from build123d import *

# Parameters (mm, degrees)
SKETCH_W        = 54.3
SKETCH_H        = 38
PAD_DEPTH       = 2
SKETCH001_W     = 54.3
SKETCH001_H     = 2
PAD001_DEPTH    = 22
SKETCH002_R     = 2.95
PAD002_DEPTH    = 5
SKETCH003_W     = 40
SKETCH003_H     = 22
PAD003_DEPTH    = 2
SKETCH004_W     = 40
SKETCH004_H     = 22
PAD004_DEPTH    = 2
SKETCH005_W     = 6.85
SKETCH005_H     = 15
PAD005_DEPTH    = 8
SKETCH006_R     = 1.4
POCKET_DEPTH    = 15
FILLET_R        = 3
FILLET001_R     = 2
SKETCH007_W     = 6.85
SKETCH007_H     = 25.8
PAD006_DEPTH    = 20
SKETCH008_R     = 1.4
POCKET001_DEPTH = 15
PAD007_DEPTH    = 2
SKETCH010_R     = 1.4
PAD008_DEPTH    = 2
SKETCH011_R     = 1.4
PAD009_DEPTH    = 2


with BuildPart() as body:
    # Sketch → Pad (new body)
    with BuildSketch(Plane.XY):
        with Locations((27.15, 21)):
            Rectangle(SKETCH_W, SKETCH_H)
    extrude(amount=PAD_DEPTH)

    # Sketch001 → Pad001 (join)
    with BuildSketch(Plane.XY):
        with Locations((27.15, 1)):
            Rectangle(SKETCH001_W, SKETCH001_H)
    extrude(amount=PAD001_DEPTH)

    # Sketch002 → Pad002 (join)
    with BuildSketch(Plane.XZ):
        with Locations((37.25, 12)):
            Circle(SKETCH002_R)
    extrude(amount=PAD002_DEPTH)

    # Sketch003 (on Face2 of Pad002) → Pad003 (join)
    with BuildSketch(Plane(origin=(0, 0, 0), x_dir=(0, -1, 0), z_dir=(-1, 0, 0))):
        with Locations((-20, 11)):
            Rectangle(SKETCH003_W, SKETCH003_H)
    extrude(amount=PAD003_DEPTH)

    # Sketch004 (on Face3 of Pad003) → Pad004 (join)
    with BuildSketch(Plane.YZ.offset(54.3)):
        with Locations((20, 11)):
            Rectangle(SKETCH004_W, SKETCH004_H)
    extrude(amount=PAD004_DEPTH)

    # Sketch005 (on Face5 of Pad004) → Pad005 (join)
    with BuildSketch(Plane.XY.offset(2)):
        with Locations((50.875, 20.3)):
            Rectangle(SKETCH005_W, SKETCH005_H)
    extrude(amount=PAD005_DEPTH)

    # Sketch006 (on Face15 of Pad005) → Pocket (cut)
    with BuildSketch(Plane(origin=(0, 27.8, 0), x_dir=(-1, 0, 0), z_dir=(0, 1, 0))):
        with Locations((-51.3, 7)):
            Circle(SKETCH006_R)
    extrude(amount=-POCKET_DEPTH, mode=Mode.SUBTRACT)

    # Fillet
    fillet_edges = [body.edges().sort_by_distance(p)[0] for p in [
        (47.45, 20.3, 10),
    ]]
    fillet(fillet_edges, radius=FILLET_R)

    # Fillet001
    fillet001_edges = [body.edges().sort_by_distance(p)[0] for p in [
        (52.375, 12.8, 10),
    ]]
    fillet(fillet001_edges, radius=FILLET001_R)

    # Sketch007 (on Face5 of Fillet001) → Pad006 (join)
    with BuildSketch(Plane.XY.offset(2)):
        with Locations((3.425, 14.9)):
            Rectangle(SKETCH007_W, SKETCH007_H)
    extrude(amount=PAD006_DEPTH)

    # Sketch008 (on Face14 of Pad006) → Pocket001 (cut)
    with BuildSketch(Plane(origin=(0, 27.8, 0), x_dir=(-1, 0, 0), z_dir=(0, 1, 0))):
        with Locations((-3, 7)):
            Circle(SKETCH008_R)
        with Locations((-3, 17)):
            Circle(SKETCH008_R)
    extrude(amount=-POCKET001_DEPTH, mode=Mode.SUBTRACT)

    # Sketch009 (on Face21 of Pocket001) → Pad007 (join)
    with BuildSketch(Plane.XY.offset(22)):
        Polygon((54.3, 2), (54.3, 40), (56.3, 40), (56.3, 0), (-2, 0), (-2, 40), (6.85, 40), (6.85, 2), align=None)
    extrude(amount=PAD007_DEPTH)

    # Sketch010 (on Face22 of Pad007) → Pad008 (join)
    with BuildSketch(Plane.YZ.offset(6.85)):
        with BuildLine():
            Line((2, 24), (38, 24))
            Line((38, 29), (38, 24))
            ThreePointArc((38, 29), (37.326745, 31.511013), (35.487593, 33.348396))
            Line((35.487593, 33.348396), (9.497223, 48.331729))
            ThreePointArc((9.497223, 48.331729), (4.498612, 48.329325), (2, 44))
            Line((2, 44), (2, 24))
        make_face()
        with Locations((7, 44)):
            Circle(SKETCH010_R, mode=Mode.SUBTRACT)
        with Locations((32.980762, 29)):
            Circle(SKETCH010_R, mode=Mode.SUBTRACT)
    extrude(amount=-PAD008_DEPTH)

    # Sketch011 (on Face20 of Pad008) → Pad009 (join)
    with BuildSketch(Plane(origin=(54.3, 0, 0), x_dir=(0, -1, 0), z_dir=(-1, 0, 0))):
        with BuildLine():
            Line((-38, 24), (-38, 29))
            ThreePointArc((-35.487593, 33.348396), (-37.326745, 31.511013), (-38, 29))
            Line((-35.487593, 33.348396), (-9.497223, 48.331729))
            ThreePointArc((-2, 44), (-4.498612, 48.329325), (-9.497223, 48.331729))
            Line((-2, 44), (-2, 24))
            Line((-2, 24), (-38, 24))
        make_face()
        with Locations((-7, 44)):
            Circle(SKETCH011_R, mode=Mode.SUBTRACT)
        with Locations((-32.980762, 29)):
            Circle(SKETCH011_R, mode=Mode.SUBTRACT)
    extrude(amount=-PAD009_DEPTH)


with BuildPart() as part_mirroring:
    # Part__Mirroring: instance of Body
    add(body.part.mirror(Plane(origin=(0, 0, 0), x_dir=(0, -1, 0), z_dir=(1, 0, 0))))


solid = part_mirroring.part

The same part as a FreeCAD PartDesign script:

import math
import FreeCAD as App
import Part
import Sketcher
from FreeCAD import Vector
Q = App.Units.Quantity


def edges_at(feature, points):
    """Names of the edges that pass closest to the given points."""
    edges = feature.Shape.Edges
    near = lambda p: min(range(len(edges)), key=lambda i: edges[i].distToShape(Part.Vertex(*p))[0])
    return sorted({f"Edge{near(p) + 1}" for p in points})

doc = App.newDocument("Part")
body = doc.addObject("PartDesign::Body", "Body")

# Sketch on XY plane
sketch1 = body.newObject("Sketcher::SketchObject", "Sketch")
sketch1.AttachmentSupport = (doc.getObject("XY_Plane"), [""])
sketch1.MapMode = "FlatFace"
sketch1.addGeometry(Part.LineSegment(Vector(0, 40, 0), Vector(0, 2, 0)), False)
sketch1.addGeometry(Part.LineSegment(Vector(0, 2, 0), Vector(54.3, 2, 0)), False)
sketch1.addGeometry(Part.LineSegment(Vector(54.3, 2, 0), Vector(54.3, 40, 0)), False)
sketch1.addGeometry(Part.LineSegment(Vector(54.3, 40, 0), Vector(0, 40, 0)), False)
sketch1.addConstraint(Sketcher.Constraint("Coincident", 0, 2, 1, 1))
sketch1.addConstraint(Sketcher.Constraint("Coincident", 1, 2, 2, 1))
sketch1.addConstraint(Sketcher.Constraint("Coincident", 2, 2, 3, 1))
sketch1.addConstraint(Sketcher.Constraint("Coincident", 3, 2, 0, 1))
sketch1.addConstraint(Sketcher.Constraint("Vertical", 0))
sketch1.addConstraint(Sketcher.Constraint("Horizontal", 1))
sketch1.addConstraint(Sketcher.Constraint("Vertical", 2))
sketch1.addConstraint(Sketcher.Constraint("Horizontal", 3))
sketch1.addConstraint(Sketcher.Constraint("PointOnObject", 0, 2, -2))
sketch1.addConstraint(Sketcher.Constraint("DistanceY", 0, 2, 0, 1, Q("38 mm")))
sketch1.addConstraint(Sketcher.Constraint("DistanceX", 1, 1, 1, 2, Q("54.3 mm")))
sketch1.addConstraint(Sketcher.Constraint("DistanceY", -1, 1, 0, 2, Q("2 mm")))
pad1 = body.newObject("PartDesign::Pad", "Pad")
pad1.Profile = sketch1
pad1.Length = 2

# Sketch on XY plane
sketch2 = body.newObject("Sketcher::SketchObject", "Sketch001")
sketch2.AttachmentSupport = (doc.getObject("XY_Plane"), [""])
sketch2.MapMode = "FlatFace"
sketch2.addGeometry(Part.LineSegment(Vector(0, 2, 0), Vector(0, 0, 0)), False)
sketch2.addGeometry(Part.LineSegment(Vector(0, 0, 0), Vector(54.3, 0, 0)), False)
sketch2.addGeometry(Part.LineSegment(Vector(54.3, 0, 0), Vector(54.3, 2, 0)), False)
sketch2.addGeometry(Part.LineSegment(Vector(54.3, 2, 0), Vector(0, 2, 0)), False)
sketch2.addConstraint(Sketcher.Constraint("Coincident", 0, 2, 1, 1))
sketch2.addConstraint(Sketcher.Constraint("Coincident", 1, 2, 2, 1))
sketch2.addConstraint(Sketcher.Constraint("Coincident", 2, 2, 3, 1))
sketch2.addConstraint(Sketcher.Constraint("Coincident", 3, 2, 0, 1))
sketch2.addConstraint(Sketcher.Constraint("Vertical", 0))
sketch2.addConstraint(Sketcher.Constraint("Horizontal", 1))
sketch2.addConstraint(Sketcher.Constraint("Vertical", 2))
sketch2.addConstraint(Sketcher.Constraint("Horizontal", 3))
sketch2.addConstraint(Sketcher.Constraint("Coincident", 0, 2, -1, 1))
sketch2.addConstraint(Sketcher.Constraint("DistanceY", 0, 2, 0, 1, Q("2 mm")))
sketch2.addConstraint(Sketcher.Constraint("DistanceX", 1, 1, 1, 2, Q("54.3 mm")))
pad2 = body.newObject("PartDesign::Pad", "Pad001")
pad2.Profile = sketch2
pad2.Length = 22

# Sketch on XZ plane
sketch3 = body.newObject("Sketcher::SketchObject", "Sketch002")
sketch3.AttachmentSupport = (doc.getObject("XZ_Plane"), [""])
sketch3.MapMode = "FlatFace"
sketch3.addGeometry(Part.Circle(Vector(37.25, 12, 0), Vector(0, 0, 1), 2.95), False)
sketch3.addConstraint(Sketcher.Constraint("Diameter", 0, Q("5.9 mm")))
sketch3.addConstraint(Sketcher.Constraint("DistanceY", -1, 1, 0, 3, Q("12 mm")))
sketch3.addConstraint(Sketcher.Constraint("DistanceX", -1, 1, 0, 3, Q("37.25 mm")))
pad3 = body.newObject("PartDesign::Pad", "Pad002")
pad3.Profile = sketch3
pad3.Length = 5

# Sketch on YZ plane
sketch4 = body.newObject("Sketcher::SketchObject", "Sketch003")
sketch4.AttachmentSupport = (doc.getObject("YZ_Plane"), [""])
sketch4.MapMode = "FlatFace"
sketch4.addGeometry(Part.LineSegment(Vector(40, 22, 0), Vector(40, 0, 0)), False)
sketch4.addGeometry(Part.LineSegment(Vector(40, 0, 0), Vector(0, 0, 0)), False)
sketch4.addGeometry(Part.LineSegment(Vector(0, 0, 0), Vector(0, 22, 0)), False)
sketch4.addGeometry(Part.LineSegment(Vector(0, 22, 0), Vector(40, 22, 0)), False)
sketch4.addConstraint(Sketcher.Constraint("Coincident", 0, 2, 1, 1))
sketch4.addConstraint(Sketcher.Constraint("Coincident", 1, 2, 2, 1))
sketch4.addConstraint(Sketcher.Constraint("Coincident", 2, 2, 3, 1))
sketch4.addConstraint(Sketcher.Constraint("Coincident", 3, 2, 0, 1))
sketch4.addConstraint(Sketcher.Constraint("Vertical", 0))
sketch4.addConstraint(Sketcher.Constraint("Horizontal", 1))
sketch4.addConstraint(Sketcher.Constraint("Vertical", 2))
sketch4.addConstraint(Sketcher.Constraint("Horizontal", 3))
sketch4.addConstraint(Sketcher.Constraint("Coincident", 1, 2, -1, 1))
sketch4.addConstraint(Sketcher.Constraint("DistanceX", 1, 2, 1, 1, Q("40 mm")))
sketch4.addConstraint(Sketcher.Constraint("DistanceY", 0, 2, 0, 1, Q("22 mm")))
pad4 = body.newObject("PartDesign::Pad", "Pad003")
pad4.Profile = sketch4
pad4.Length = 2
pad4.Reversed = True

# Sketch on YZ plane
sketch5 = body.newObject("Sketcher::SketchObject", "Sketch004")
sketch5.AttachmentSupport = (doc.getObject("YZ_Plane"), [""])
sketch5.MapMode = "FlatFace"
sketch5.AttachmentOffset = App.Placement(Vector(0, 0, 54.3), App.Rotation())
sketch5.addGeometry(Part.LineSegment(Vector(0, 22, 0), Vector(0, 0, 0)), False)
sketch5.addGeometry(Part.LineSegment(Vector(0, 0, 0), Vector(40, 0, 0)), False)
sketch5.addGeometry(Part.LineSegment(Vector(40, 0, 0), Vector(40, 22, 0)), False)
sketch5.addGeometry(Part.LineSegment(Vector(40, 22, 0), Vector(0, 22, 0)), False)
sketch5.addConstraint(Sketcher.Constraint("Coincident", 0, 2, 1, 1))
sketch5.addConstraint(Sketcher.Constraint("Coincident", 1, 2, 2, 1))
sketch5.addConstraint(Sketcher.Constraint("Coincident", 2, 2, 3, 1))
sketch5.addConstraint(Sketcher.Constraint("Coincident", 3, 2, 0, 1))
sketch5.addConstraint(Sketcher.Constraint("Vertical", 0))
sketch5.addConstraint(Sketcher.Constraint("Horizontal", 1))
sketch5.addConstraint(Sketcher.Constraint("Vertical", 2))
sketch5.addConstraint(Sketcher.Constraint("Horizontal", 3))
sketch5.addConstraint(Sketcher.Constraint("Coincident", 0, 2, -1, 1))
sketch5.addConstraint(Sketcher.Constraint("DistanceX", 1, 1, 1, 2, Q("40 mm")))
sketch5.addConstraint(Sketcher.Constraint("DistanceY", 0, 2, 0, 1, Q("22 mm")))
pad5 = body.newObject("PartDesign::Pad", "Pad004")
pad5.Profile = sketch5
pad5.Length = 2

# Sketch on XY plane
sketch6 = body.newObject("Sketcher::SketchObject", "Sketch005")
sketch6.AttachmentSupport = (doc.getObject("XY_Plane"), [""])
sketch6.MapMode = "FlatFace"
sketch6.AttachmentOffset = App.Placement(Vector(0, 0, 2), App.Rotation())
sketch6.addGeometry(Part.LineSegment(Vector(47.45, 27.8, 0), Vector(47.45, 12.8, 0)), False)
sketch6.addGeometry(Part.LineSegment(Vector(47.45, 12.8, 0), Vector(54.3, 12.8, 0)), False)
sketch6.addGeometry(Part.LineSegment(Vector(54.3, 12.8, 0), Vector(54.3, 27.8, 0)), False)
sketch6.addGeometry(Part.LineSegment(Vector(54.3, 27.8, 0), Vector(47.45, 27.8, 0)), False)
sketch6.addConstraint(Sketcher.Constraint("Coincident", 0, 2, 1, 1))
sketch6.addConstraint(Sketcher.Constraint("Coincident", 1, 2, 2, 1))
sketch6.addConstraint(Sketcher.Constraint("Coincident", 2, 2, 3, 1))
sketch6.addConstraint(Sketcher.Constraint("Coincident", 3, 2, 0, 1))
sketch6.addConstraint(Sketcher.Constraint("Vertical", 0))
sketch6.addConstraint(Sketcher.Constraint("Horizontal", 1))
sketch6.addConstraint(Sketcher.Constraint("Vertical", 2))
sketch6.addConstraint(Sketcher.Constraint("Horizontal", 3))
sketch6.addConstraint(Sketcher.Constraint("DistanceY", 0, 2, 0, 1, Q("15 mm")))
sketch6.addConstraint(Sketcher.Constraint("DistanceX", 1, 1, 1, 2, Q("6.85 mm")))
sketch6.addConstraint(Sketcher.Constraint("DistanceY", -1, 1, 0, 2, Q("12.8 mm")))
sketch6.addConstraint(Sketcher.Constraint("DistanceX", -1, 1, 1, 2, Q("54.3 mm")))
pad6 = body.newObject("PartDesign::Pad", "Pad005")
pad6.Profile = sketch6
pad6.Length = 8

# Sketch on XZ plane
sketch7 = body.newObject("Sketcher::SketchObject", "Sketch006")
sketch7.AttachmentSupport = (doc.getObject("XZ_Plane"), [""])
sketch7.MapMode = "FlatFace"
sketch7.AttachmentOffset = App.Placement(Vector(0, 0, -27.8), App.Rotation())
sketch7.addGeometry(Part.Circle(Vector(51.3, 7, 0), Vector(0, 0, 1), 1.4), False)
sketch7.addConstraint(Sketcher.Constraint("Diameter", 0, Q("2.8 mm")))
sketch7.addConstraint(Sketcher.Constraint("DistanceY", -1, 1, 0, 3, Q("7 mm")))
sketch7.addConstraint(Sketcher.Constraint("DistanceX", -1, 1, 0, 3, Q("51.3 mm")))
pocket1 = body.newObject("PartDesign::Pocket", "Pocket")
pocket1.Profile = sketch7
pocket1.Length = 15
pocket1.Reversed = True
doc.recompute()

fillet = body.newObject("PartDesign::Fillet", "Fillet")
fillet.Base = (pocket1, edges_at(pocket1, [(47.45, 20.3, 10)]))
fillet.Radius = 3
doc.recompute()

fillet2 = body.newObject("PartDesign::Fillet", "Fillet001")
fillet2.Base = (fillet, edges_at(fillet, [(52.375, 12.8, 10)]))
fillet2.Radius = 2

# Sketch on XY plane
sketch8 = body.newObject("Sketcher::SketchObject", "Sketch007")
sketch8.AttachmentSupport = (doc.getObject("XY_Plane"), [""])
sketch8.MapMode = "FlatFace"
sketch8.AttachmentOffset = App.Placement(Vector(0, 0, 2), App.Rotation())
sketch8.addGeometry(Part.LineSegment(Vector(0, 27.8, 0), Vector(0, 2, 0)), False)
sketch8.addGeometry(Part.LineSegment(Vector(0, 2, 0), Vector(6.85, 2, 0)), False)
sketch8.addGeometry(Part.LineSegment(Vector(6.85, 2, 0), Vector(6.85, 27.8, 0)), False)
sketch8.addGeometry(Part.LineSegment(Vector(6.85, 27.8, 0), Vector(0, 27.8, 0)), False)
sketch8.addConstraint(Sketcher.Constraint("Coincident", 0, 2, 1, 1))
sketch8.addConstraint(Sketcher.Constraint("Coincident", 1, 2, 2, 1))
sketch8.addConstraint(Sketcher.Constraint("Coincident", 2, 2, 3, 1))
sketch8.addConstraint(Sketcher.Constraint("Coincident", 3, 2, 0, 1))
sketch8.addConstraint(Sketcher.Constraint("Vertical", 0))
sketch8.addConstraint(Sketcher.Constraint("Horizontal", 1))
sketch8.addConstraint(Sketcher.Constraint("Vertical", 2))
sketch8.addConstraint(Sketcher.Constraint("Horizontal", 3))
sketch8.addConstraint(Sketcher.Constraint("PointOnObject", 0, 2, -2))
sketch8.addConstraint(Sketcher.Constraint("DistanceY", 0, 2, 0, 1, Q("25.8 mm")))
sketch8.addConstraint(Sketcher.Constraint("DistanceY", -1, 1, 0, 2, Q("2 mm")))
sketch8.addConstraint(Sketcher.Constraint("DistanceX", 1, 1, 1, 2, Q("6.85 mm")))
pad7 = body.newObject("PartDesign::Pad", "Pad006")
pad7.Profile = sketch8
pad7.Length = 20

# Sketch on XZ plane
sketch9 = body.newObject("Sketcher::SketchObject", "Sketch008")
sketch9.AttachmentSupport = (doc.getObject("XZ_Plane"), [""])
sketch9.MapMode = "FlatFace"
sketch9.AttachmentOffset = App.Placement(Vector(0, 0, -27.8), App.Rotation())
sketch9.addGeometry(Part.Circle(Vector(3, 7, 0), Vector(0, 0, 1), 1.4), False)
sketch9.addGeometry(Part.Circle(Vector(3, 17, 0), Vector(0, 0, 1), 1.4), False)
sketch9.addConstraint(Sketcher.Constraint("Equal", 0, 1))
sketch9.addConstraint(Sketcher.Constraint("Vertical", 0, 3, 1, 3))
sketch9.addConstraint(Sketcher.Constraint("Diameter", 0, Q("2.8 mm")))
sketch9.addConstraint(Sketcher.Constraint("DistanceX", -1, 1, 0, 3, Q("3 mm")))
sketch9.addConstraint(Sketcher.Constraint("DistanceY", -1, 1, 0, 3, Q("7 mm")))
sketch9.addConstraint(Sketcher.Constraint("DistanceY", -1, 1, 1, 3, Q("17 mm")))
pocket2 = body.newObject("PartDesign::Pocket", "Pocket001")
pocket2.Profile = sketch9
pocket2.Length = 15
pocket2.Reversed = True

# Sketch on XY plane
sketch10 = body.newObject("Sketcher::SketchObject", "Sketch009")
sketch10.AttachmentSupport = (doc.getObject("XY_Plane"), [""])
sketch10.MapMode = "FlatFace"
sketch10.AttachmentOffset = App.Placement(Vector(0, 0, 22), App.Rotation())
sketch10.addGeometry(Part.LineSegment(Vector(54.3, 40, 0), Vector(54.3, 2, 0)), False)
sketch10.addGeometry(Part.LineSegment(Vector(54.3, 2, 0), Vector(6.85, 2, 0)), False)
sketch10.addGeometry(Part.LineSegment(Vector(6.85, 2, 0), Vector(6.85, 40, 0)), False)
sketch10.addGeometry(Part.LineSegment(Vector(6.85, 40, 0), Vector(-2, 40, 0)), False)
sketch10.addGeometry(Part.LineSegment(Vector(-2, 40, 0), Vector(-2, 0, 0)), False)
sketch10.addGeometry(Part.LineSegment(Vector(-2, 0, 0), Vector(56.3, 0, 0)), False)
sketch10.addGeometry(Part.LineSegment(Vector(56.3, 0, 0), Vector(56.3, 40, 0)), False)
sketch10.addGeometry(Part.LineSegment(Vector(56.3, 40, 0), Vector(54.3, 40, 0)), False)
sketch10.addConstraint(Sketcher.Constraint("Coincident", 0, 2, 1, 1))
sketch10.addConstraint(Sketcher.Constraint("Coincident", 1, 2, 2, 1))
sketch10.addConstraint(Sketcher.Constraint("Coincident", 2, 2, 3, 1))
sketch10.addConstraint(Sketcher.Constraint("Coincident", 3, 2, 4, 1))
sketch10.addConstraint(Sketcher.Constraint("Coincident", 4, 2, 5, 1))
sketch10.addConstraint(Sketcher.Constraint("Coincident", 5, 2, 6, 1))
sketch10.addConstraint(Sketcher.Constraint("Coincident", 6, 2, 7, 1))
sketch10.addConstraint(Sketcher.Constraint("Coincident", 7, 2, 0, 1))
sketch10.addConstraint(Sketcher.Constraint("Vertical", 0))
sketch10.addConstraint(Sketcher.Constraint("Horizontal", 1))
sketch10.addConstraint(Sketcher.Constraint("Vertical", 2))
sketch10.addConstraint(Sketcher.Constraint("Horizontal", 3))
sketch10.addConstraint(Sketcher.Constraint("Vertical", 4))
sketch10.addConstraint(Sketcher.Constraint("Horizontal", 5))
sketch10.addConstraint(Sketcher.Constraint("Vertical", 6))
sketch10.addConstraint(Sketcher.Constraint("Horizontal", 7))
sketch10.addConstraint(Sketcher.Constraint("PointOnObject", 4, 2, -1))
sketch10.addConstraint(Sketcher.Constraint("Horizontal", 3, 2, 6, 2))
sketch10.addConstraint(Sketcher.Constraint("DistanceX", 7, 2, 7, 1, Q("2 mm")))
sketch10.addConstraint(Sketcher.Constraint("DistanceY", 0, 2, 0, 1, Q("38 mm")))
sketch10.addConstraint(Sketcher.Constraint("DistanceY", 4, 2, 4, 1, Q("40 mm")))
sketch10.addConstraint(Sketcher.Constraint("DistanceX", 5, 1, 5, 2, Q("58.3 mm")))
sketch10.addConstraint(Sketcher.Constraint("DistanceX", 3, 2, -1, 1, Q("2 mm")))
sketch10.addConstraint(Sketcher.Constraint("DistanceX", 1, 2, 1, 1, Q("47.45 mm")))
pad8 = body.newObject("PartDesign::Pad", "Pad007")
pad8.Profile = sketch10
pad8.Length = 2

# Sketch on YZ plane
sketch11 = body.newObject("Sketcher::SketchObject", "Sketch010")
sketch11.AttachmentSupport = (doc.getObject("YZ_Plane"), [""])
sketch11.MapMode = "FlatFace"
sketch11.AttachmentOffset = App.Placement(Vector(0, 0, 6.85), App.Rotation())
sketch11.addGeometry(Part.LineSegment(Vector(2, 24, 0), Vector(38, 24, 0)), False)
sketch11.addGeometry(Part.LineSegment(Vector(38, 24, 0), Vector(38, 29, 0)), False)
sketch11.addGeometry(Part.ArcOfCircle(Part.Circle(Vector(32.980765, 29.000002, 0), Vector(0, 0, 1), 5.019235), math.radians(-0.00002), math.radians(60.036763)), False)
sketch11.addGeometry(Part.LineSegment(Vector(35.487593, 33.348396, 0), Vector(9.497223, 48.331729, 0)), False)
sketch11.addGeometry(Part.ArcOfCircle(Part.Circle(Vector(7, 44, 0), Vector(0, 0, 1), 5), math.radians(60.036742), math.radians(179.999995)), False)
sketch11.addGeometry(Part.LineSegment(Vector(2, 44, 0), Vector(2, 24, 0)), False)
sketch11.addGeometry(Part.Circle(Vector(32.980762, 29, 0), Vector(0, 0, 1), 1.4), False)
sketch11.addGeometry(Part.Circle(Vector(7, 44, 0), Vector(0, 0, 1), 1.4), False)
sketch11.addConstraint(Sketcher.Constraint("Coincident", 0, 2, 1, 1))
sketch11.addConstraint(Sketcher.Constraint("Tangent", 1, 2, 2, 1))
sketch11.addConstraint(Sketcher.Constraint("Tangent", 2, 2, 3, 1))
sketch11.addConstraint(Sketcher.Constraint("Tangent", 3, 2, 4, 1))
sketch11.addConstraint(Sketcher.Constraint("Tangent", 4, 2, 5, 1))
sketch11.addConstraint(Sketcher.Constraint("Coincident", 5, 2, 0, 1))
sketch11.addConstraint(Sketcher.Constraint("Horizontal", 0))
sketch11.addConstraint(Sketcher.Constraint("Vertical", 1))
sketch11.addConstraint(Sketcher.Constraint("Vertical", 5))
sketch11.addConstraint(Sketcher.Constraint("Coincident", 6, 3, 2, 3))
sketch11.addConstraint(Sketcher.Constraint("Coincident", 7, 3, 4, 3))
sketch11.addConstraint(Sketcher.Constraint("Equal", 6, 7))
sketch11.addConstraint(Sketcher.Constraint("Radius", 4, Q("5 mm")))
sketch11.addConstraint(Sketcher.Constraint("Diameter", 6, Q("2.8 mm")))
sketch11.addConstraint(Sketcher.Constraint("DistanceX", 0, 1, 0, 2, Q("36 mm")))
sketch11.addConstraint(Sketcher.Constraint("DistanceY", 1, 1, 1, 2, Q("5 mm")))
sketch11.addConstraint(Sketcher.Constraint("DistanceY", 5, 2, 5, 1, Q("20 mm")))
sketch11.addConstraint(Sketcher.Constraint("DistanceY", -1, 1, 2, 3, Q("29.000002 mm")))
sketch11.addConstraint(Sketcher.Constraint("DistanceX", -1, 1, 4, 3, Q("7 mm")))
sketch11.addConstraint(Sketcher.Constraint("Radius", 2, Q("5.019235 mm")))
pad9 = body.newObject("PartDesign::Pad", "Pad008")
pad9.Profile = sketch11
pad9.Length = 2
pad9.Reversed = True

# Sketch on YZ plane
sketch12 = body.newObject("Sketcher::SketchObject", "Sketch011")
sketch12.AttachmentSupport = (doc.getObject("YZ_Plane"), [""])
sketch12.MapMode = "FlatFace"
sketch12.AttachmentOffset = App.Placement(Vector(0, 0, 54.3), App.Rotation())
sketch12.addGeometry(Part.LineSegment(Vector(38, 29, 0), Vector(38, 24, 0)), False)
sketch12.addGeometry(Part.LineSegment(Vector(38, 24, 0), Vector(2, 24, 0)), False)
sketch12.addGeometry(Part.LineSegment(Vector(2, 24, 0), Vector(2, 44, 0)), False)
sketch12.addGeometry(Part.ArcOfCircle(Part.Circle(Vector(7, 44, 0), Vector(0, 0, 1), 5), math.radians(60.036742), math.radians(179.999995)), False)
sketch12.addGeometry(Part.LineSegment(Vector(9.497223, 48.331729, 0), Vector(35.487593, 33.348396, 0)), False)
sketch12.addGeometry(Part.ArcOfCircle(Part.Circle(Vector(32.980765, 29.000002, 0), Vector(0, 0, 1), 5.019235), math.radians(-0.00002), math.radians(60.036763)), False)
sketch12.addGeometry(Part.Circle(Vector(32.980762, 29, 0), Vector(0, 0, 1), 1.4), False)
sketch12.addGeometry(Part.Circle(Vector(7, 44, 0), Vector(0, 0, 1), 1.4), False)
sketch12.addConstraint(Sketcher.Constraint("Coincident", 0, 2, 1, 1))
sketch12.addConstraint(Sketcher.Constraint("Coincident", 1, 2, 2, 1))
sketch12.addConstraint(Sketcher.Constraint("Tangent", 2, 2, 3, 2))
sketch12.addConstraint(Sketcher.Constraint("Tangent", 3, 1, 4, 1))
sketch12.addConstraint(Sketcher.Constraint("Tangent", 4, 2, 5, 2))
sketch12.addConstraint(Sketcher.Constraint("Tangent", 5, 1, 0, 1))
sketch12.addConstraint(Sketcher.Constraint("Vertical", 0))
sketch12.addConstraint(Sketcher.Constraint("Horizontal", 1))
sketch12.addConstraint(Sketcher.Constraint("Vertical", 2))
sketch12.addConstraint(Sketcher.Constraint("Coincident", 6, 3, 5, 3))
sketch12.addConstraint(Sketcher.Constraint("Coincident", 7, 3, 3, 3))
sketch12.addConstraint(Sketcher.Constraint("Equal", 6, 7))
sketch12.addConstraint(Sketcher.Constraint("Radius", 3, Q("5 mm")))
sketch12.addConstraint(Sketcher.Constraint("Diameter", 6, Q("2.8 mm")))
sketch12.addConstraint(Sketcher.Constraint("DistanceX", 1, 2, 1, 1, Q("36 mm")))
sketch12.addConstraint(Sketcher.Constraint("DistanceY", 0, 2, 0, 1, Q("5 mm")))
sketch12.addConstraint(Sketcher.Constraint("DistanceY", 2, 1, 2, 2, Q("20 mm")))
sketch12.addConstraint(Sketcher.Constraint("DistanceX", -1, 1, 3, 3, Q("7 mm")))
sketch12.addConstraint(Sketcher.Constraint("DistanceY", -1, 1, 3, 3, Q("44 mm")))
sketch12.addConstraint(Sketcher.Constraint("Radius", 5, Q("5.019235 mm")))
pad10 = body.newObject("PartDesign::Pad", "Pad009")
pad10.Profile = sketch12
pad10.Length = 2
body2 = doc.addObject("PartDesign::Body", "Body001")
doc.recompute()

mirroring = doc.addObject("Part::Mirroring", "Mirroring")
mirroring.Source = body
mirroring.Base = Vector(0, 0, 0)
mirroring.Normal = Vector(1, 0, 0)
body2.BaseFeature = mirroring
doc.recompute()
body.Visibility = False
mirroring.Visibility = False

doc.recompute()
